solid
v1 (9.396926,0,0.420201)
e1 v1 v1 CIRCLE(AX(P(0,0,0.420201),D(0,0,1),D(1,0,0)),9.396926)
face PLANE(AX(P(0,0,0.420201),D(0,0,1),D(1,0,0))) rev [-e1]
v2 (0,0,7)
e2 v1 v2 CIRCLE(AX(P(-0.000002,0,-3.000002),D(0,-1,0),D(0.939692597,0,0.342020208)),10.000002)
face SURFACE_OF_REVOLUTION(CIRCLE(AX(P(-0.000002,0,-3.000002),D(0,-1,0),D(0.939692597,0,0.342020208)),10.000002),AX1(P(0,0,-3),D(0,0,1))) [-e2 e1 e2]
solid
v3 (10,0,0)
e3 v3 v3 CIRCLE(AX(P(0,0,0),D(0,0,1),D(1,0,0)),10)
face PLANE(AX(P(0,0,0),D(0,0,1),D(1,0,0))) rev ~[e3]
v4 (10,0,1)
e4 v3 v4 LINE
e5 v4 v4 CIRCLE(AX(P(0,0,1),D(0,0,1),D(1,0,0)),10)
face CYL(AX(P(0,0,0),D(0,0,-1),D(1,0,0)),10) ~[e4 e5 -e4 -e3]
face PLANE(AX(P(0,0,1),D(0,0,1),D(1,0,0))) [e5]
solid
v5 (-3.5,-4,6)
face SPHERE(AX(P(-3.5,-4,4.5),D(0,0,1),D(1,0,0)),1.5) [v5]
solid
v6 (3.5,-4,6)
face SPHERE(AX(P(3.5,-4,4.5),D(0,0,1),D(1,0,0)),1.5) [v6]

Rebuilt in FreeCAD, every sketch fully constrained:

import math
import FreeCAD as App
import Part
import Sketcher
from FreeCAD import Vector
Q = App.Units.Quantity

doc = App.newDocument("Part")
body = doc.addObject("PartDesign::Body", "Body")

# Sketch on XY plane
sketch1 = doc.addObject("Sketcher::SketchObject", "Sketch")
body.addObject(sketch1)
sketch1.AttachmentSupport = (doc.XY_Plane, [""])
sketch1.MapMode = "FlatFace"
sketch1.addGeometry(Part.Circle(Vector(0, 0, 0), Vector(0, 0, 1), 10), False)
sketch1.addConstraint(Sketcher.Constraint("Coincident", 0, 3, -1, 1))
sketch1.addConstraint(Sketcher.Constraint("Diameter", 0, Q("20 mm")))
pad1 = doc.addObject("PartDesign::Pad", "Pad")
body.addObject(pad1)
pad1.Profile = sketch1
pad1.Length = 1
body2 = doc.addObject("PartDesign::Body", "Body001")

# Sketch on XZ plane
sketch2 = doc.addObject("Sketcher::SketchObject", "Sketch001")
body2.addObject(sketch2)
sketch2.AttachmentSupport = (doc.getObject("XZ_Plane001"), [""])
sketch2.MapMode = "FlatFace"
sketch2.addGeometry(Part.ArcOfCircle(Part.Circle(Vector(0, -3, 0), Vector(0, 0, 1), 10), math.radians(20), math.radians(90)), False)
sketch2.addGeometry(Part.LineSegment(Vector(0, 7, 0), Vector(0, 0, 0)), False)
sketch2.addGeometry(Part.LineSegment(Vector(0, 0, 0), Vector(9, 0, 0)), False)
sketch2.addConstraint(Sketcher.Constraint("Coincident", 0, 2, 1, 1))
sketch2.addConstraint(Sketcher.Constraint("Coincident", 1, 2, 2, 1))
sketch2.addConstraint(Sketcher.Constraint("Coincident", 2, 2, 0, 1))
sketch2.addConstraint(Sketcher.Constraint("Vertical", 1))
sketch2.addConstraint(Sketcher.Constraint("Horizontal", 2))
sketch2.addConstraint(Sketcher.Constraint("PointOnObject", 0, 3, -2))
sketch2.addConstraint(Sketcher.Constraint("PointOnObject", 0, 2, -2))
sketch2.addConstraint(Sketcher.Constraint("Radius", 0, Q("10.000002 mm")))
sketch2.addConstraint(Sketcher.Constraint("DistanceY", 0, 3, -1, 1, Q("3.000002 mm")))
sketch2.addConstraint(Sketcher.Constraint("DistanceY", 1, 2, 1, 1, Q("6.579799 mm")))
revolution = doc.addObject("PartDesign::Revolution", "Revolution")
body2.addObject(revolution)
revolution.Profile = sketch2
revolution.ReferenceAxis = (sketch2, ["V_Axis"])
revolution.Angle = 360
body3 = doc.addObject("PartDesign::Body", "Body002")

# Sketch on XZ plane
sketch3 = doc.addObject("Sketcher::SketchObject", "Sketch002")
body3.addObject(sketch3)
sketch3.AttachmentSupport = (doc.getObject("XZ_Plane002"), [""])
sketch3.MapMode = "FlatFace"
sketch3.AttachmentOffset = App.Placement(Vector(0, 0, 4), App.Rotation())
sketch3.addGeometry(Part.ArcOfCircle(Part.Circle(Vector(-3.5, 4.5, 0), Vector(0, 0, 1), 1.5), math.radians(-90), math.radians(90)), False)
sketch3.addGeometry(Part.LineSegment(Vector(-3.5, 6, 0), Vector(-3.5, 3, 0)), False)
sketch3.addGeometry(Part.LineSegment(Vector(-3.5, 3, 0), Vector(-3.5, 6, 0)), True)  # axis
sketch3.addConstraint(Sketcher.Constraint("Coincident", 0, 1, 1, 2))
sketch3.addConstraint(Sketcher.Constraint("Coincident", 1, 1, 0, 2))
sketch3.addConstraint(Sketcher.Constraint("Vertical", 1))
sketch3.addConstraint(Sketcher.Constraint("Vertical", 2))
sketch3.addConstraint(Sketcher.Constraint("Coincident", 2, 1, 0, 1))
sketch3.addConstraint(Sketcher.Constraint("Equal", 1, 2))
sketch3.addConstraint(Sketcher.Constraint("Radius", 0, Q("1.5 mm")))
sketch3.addConstraint(Sketcher.Constraint("DistanceY", -1, 1, 0, 1, Q("3 mm")))
sketch3.addConstraint(Sketcher.Constraint("DistanceX", 0, 3, -1, 1, Q("3.5 mm")))
sketch3.addConstraint(Sketcher.Constraint("DistanceX", 0, 1, -1, 1, Q("3.5 mm")))
revolution2 = doc.addObject("PartDesign::Revolution", "Revolution001")
body3.addObject(revolution2)
revolution2.Profile = sketch3
revolution2.ReferenceAxis = (sketch3, ["Axis0"])
revolution2.Angle = 360
body4 = doc.addObject("PartDesign::Body", "Body003")

# Sketch on XZ plane
sketch4 = doc.addObject("Sketcher::SketchObject", "Sketch003")
body4.addObject(sketch4)
sketch4.AttachmentSupport = (doc.getObject("XZ_Plane003"), [""])
sketch4.MapMode = "FlatFace"
sketch4.AttachmentOffset = App.Placement(Vector(0, 0, 4), App.Rotation())
sketch4.addGeometry(Part.ArcOfCircle(Part.Circle(Vector(3.5, 4.5, 0), Vector(0, 0, 1), 1.5), math.radians(-90), math.radians(90)), False)
sketch4.addGeometry(Part.LineSegment(Vector(3.5, 6, 0), Vector(3.5, 3, 0)), False)
sketch4.addGeometry(Part.LineSegment(Vector(3.5, 3, 0), Vector(3.5, 6, 0)), True)  # axis
sketch4.addConstraint(Sketcher.Constraint("Coincident", 0, 1, 1, 2))
sketch4.addConstraint(Sketcher.Constraint("Coincident", 1, 1, 0, 2))
sketch4.addConstraint(Sketcher.Constraint("Vertical", 1))
sketch4.addConstraint(Sketcher.Constraint("Vertical", 2))
sketch4.addConstraint(Sketcher.Constraint("Coincident", 2, 1, 0, 1))
sketch4.addConstraint(Sketcher.Constraint("Equal", 1, 2))
sketch4.addConstraint(Sketcher.Constraint("Radius", 0, Q("1.5 mm")))
sketch4.addConstraint(Sketcher.Constraint("DistanceY", -1, 1, 0, 1, Q("3 mm")))
sketch4.addConstraint(Sketcher.Constraint("DistanceX", -1, 1, 0, 3, Q("3.5 mm")))
sketch4.addConstraint(Sketcher.Constraint("DistanceX", -1, 1, 0, 1, Q("3.5 mm")))
revolution3 = doc.addObject("PartDesign::Revolution", "Revolution002")
body4.addObject(revolution3)
revolution3.Profile = sketch4
revolution3.ReferenceAxis = (sketch4, ["Axis0"])
revolution3.Angle = 360

doc.recompute()
